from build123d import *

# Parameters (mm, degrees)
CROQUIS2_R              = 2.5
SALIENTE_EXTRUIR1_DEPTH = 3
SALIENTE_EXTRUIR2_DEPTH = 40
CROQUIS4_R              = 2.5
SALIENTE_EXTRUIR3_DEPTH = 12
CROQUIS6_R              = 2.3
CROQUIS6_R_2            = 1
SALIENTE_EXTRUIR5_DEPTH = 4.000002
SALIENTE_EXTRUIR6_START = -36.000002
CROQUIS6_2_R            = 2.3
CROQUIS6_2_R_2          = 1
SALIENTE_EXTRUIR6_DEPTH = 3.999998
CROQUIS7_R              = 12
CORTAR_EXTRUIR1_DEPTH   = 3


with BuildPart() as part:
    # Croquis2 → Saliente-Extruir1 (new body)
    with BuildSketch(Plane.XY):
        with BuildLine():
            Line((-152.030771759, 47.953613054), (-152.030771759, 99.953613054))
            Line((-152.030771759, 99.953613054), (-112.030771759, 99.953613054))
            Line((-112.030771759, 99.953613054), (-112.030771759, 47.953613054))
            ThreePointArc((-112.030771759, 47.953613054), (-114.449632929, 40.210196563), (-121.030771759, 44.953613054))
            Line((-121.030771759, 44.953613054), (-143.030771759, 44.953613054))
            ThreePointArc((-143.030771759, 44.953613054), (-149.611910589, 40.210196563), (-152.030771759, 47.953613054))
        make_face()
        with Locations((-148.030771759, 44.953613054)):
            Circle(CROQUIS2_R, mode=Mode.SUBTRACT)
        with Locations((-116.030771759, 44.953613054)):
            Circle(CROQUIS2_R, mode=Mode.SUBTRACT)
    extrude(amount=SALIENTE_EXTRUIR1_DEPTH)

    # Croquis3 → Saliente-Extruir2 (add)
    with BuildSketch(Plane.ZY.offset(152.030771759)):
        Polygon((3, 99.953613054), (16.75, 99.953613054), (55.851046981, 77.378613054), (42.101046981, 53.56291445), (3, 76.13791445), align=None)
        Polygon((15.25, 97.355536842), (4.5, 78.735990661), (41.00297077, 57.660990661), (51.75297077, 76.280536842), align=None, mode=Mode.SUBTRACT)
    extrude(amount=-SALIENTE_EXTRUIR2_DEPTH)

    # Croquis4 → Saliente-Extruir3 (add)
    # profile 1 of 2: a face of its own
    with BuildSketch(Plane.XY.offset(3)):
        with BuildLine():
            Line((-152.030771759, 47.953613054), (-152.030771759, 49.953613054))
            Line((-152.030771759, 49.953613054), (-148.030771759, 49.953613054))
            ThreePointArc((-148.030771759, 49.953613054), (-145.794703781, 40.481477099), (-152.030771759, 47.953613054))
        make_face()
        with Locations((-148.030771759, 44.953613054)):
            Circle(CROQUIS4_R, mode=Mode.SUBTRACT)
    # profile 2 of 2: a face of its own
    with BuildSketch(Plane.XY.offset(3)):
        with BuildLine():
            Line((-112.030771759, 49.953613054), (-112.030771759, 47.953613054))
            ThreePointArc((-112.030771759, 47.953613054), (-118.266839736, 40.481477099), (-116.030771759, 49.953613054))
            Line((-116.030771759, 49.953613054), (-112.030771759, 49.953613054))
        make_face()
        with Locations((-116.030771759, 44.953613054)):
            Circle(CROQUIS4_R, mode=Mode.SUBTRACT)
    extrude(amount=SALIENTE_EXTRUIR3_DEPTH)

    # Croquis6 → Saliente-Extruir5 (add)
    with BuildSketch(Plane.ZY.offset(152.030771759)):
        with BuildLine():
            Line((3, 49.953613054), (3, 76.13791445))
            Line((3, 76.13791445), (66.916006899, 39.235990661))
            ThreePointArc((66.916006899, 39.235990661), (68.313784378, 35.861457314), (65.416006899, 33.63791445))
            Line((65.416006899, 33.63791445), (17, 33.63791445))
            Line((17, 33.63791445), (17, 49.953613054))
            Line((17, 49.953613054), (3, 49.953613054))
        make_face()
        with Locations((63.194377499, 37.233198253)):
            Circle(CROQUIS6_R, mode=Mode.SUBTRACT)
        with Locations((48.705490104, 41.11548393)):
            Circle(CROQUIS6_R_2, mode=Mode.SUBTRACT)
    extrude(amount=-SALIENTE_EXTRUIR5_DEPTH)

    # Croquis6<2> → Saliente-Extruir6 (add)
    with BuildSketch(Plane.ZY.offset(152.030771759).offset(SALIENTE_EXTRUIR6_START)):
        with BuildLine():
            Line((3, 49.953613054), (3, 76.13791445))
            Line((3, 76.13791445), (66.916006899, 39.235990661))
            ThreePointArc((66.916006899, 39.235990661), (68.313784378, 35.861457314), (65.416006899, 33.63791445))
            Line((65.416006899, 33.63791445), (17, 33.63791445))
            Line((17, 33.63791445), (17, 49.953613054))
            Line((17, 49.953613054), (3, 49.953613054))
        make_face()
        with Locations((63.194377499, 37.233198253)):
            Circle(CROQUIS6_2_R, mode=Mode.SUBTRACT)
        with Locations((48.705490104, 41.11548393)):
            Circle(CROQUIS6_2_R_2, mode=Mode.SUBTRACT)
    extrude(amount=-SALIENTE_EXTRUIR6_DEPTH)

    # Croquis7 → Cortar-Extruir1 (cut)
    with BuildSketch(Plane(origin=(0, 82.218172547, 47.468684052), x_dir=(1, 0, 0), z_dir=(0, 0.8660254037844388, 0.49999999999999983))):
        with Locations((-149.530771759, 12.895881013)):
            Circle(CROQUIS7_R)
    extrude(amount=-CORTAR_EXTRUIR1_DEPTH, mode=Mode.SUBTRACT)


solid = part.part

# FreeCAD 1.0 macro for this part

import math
import FreeCAD as App
import Part
import Sketcher
from FreeCAD import Vector
Q = App.Units.Quantity

doc = App.newDocument("Part")
body = doc.addObject("PartDesign::Body", "Body")

# Sketch on XY plane
sketch1 = body.newObject("Sketcher::SketchObject", "Sketch")
sketch1.AttachmentSupport = (doc.getObject("XY_Plane"), [""])
sketch1.MapMode = "FlatFace"
sketch1.addGeometry(Part.LineSegment(Vector(-152, 100, 0), Vector(-152, 48, 0)), False)
sketch1.addGeometry(Part.ArcOfCircle(Part.Circle(Vector(-148, 45, 0), Vector(0, 0, 1), 5), math.radians(143), math.radians(360)), False)
sketch1.addGeometry(Part.LineSegment(Vector(-143, 45, 0), Vector(-121, 45, 0)), False)
sketch1.addGeometry(Part.ArcOfCircle(Part.Circle(Vector(-116, 45, 0), Vector(0, 0, 1), 5), math.radians(180), math.radians(397)), False)
sketch1.addGeometry(Part.LineSegment(Vector(-112, 48, 0), Vector(-112, 100, 0)), False)
sketch1.addGeometry(Part.LineSegment(Vector(-112, 100, 0), Vector(-152, 100, 0)), False)
sketch1.addGeometry(Part.Circle(Vector(-116, 45, 0), Vector(0, 0, 1), 2.5), False)
sketch1.addGeometry(Part.Circle(Vector(-148, 45, 0), Vector(0, 0, 1), 2.5), False)
sketch1.addConstraint(Sketcher.Constraint("Coincident", 0, 2, 1, 1))
sketch1.addConstraint(Sketcher.Constraint("Coincident", 1, 2, 2, 1))
sketch1.addConstraint(Sketcher.Constraint("Coincident", 2, 2, 3, 1))
sketch1.addConstraint(Sketcher.Constraint("Coincident", 3, 2, 4, 1))
sketch1.addConstraint(Sketcher.Constraint("Coincident", 4, 2, 5, 1))
sketch1.addConstraint(Sketcher.Constraint("Coincident", 5, 2, 0, 1))
sketch1.addConstraint(Sketcher.Constraint("Vertical", 0))
sketch1.addConstraint(Sketcher.Constraint("Horizontal", 2))
sketch1.addConstraint(Sketcher.Constraint("Vertical", 4))
sketch1.addConstraint(Sketcher.Constraint("Horizontal", 5))
sketch1.addConstraint(Sketcher.Constraint("Coincident", 6, 3, 3, 3))
sketch1.addConstraint(Sketcher.Constraint("Coincident", 7, 3, 1, 3))
sketch1.addConstraint(Sketcher.Constraint("Equal", 1, 3))
sketch1.addConstraint(Sketcher.Constraint("Equal", 6, 7))
sketch1.addConstraint(Sketcher.Constraint("Horizontal", 1, 3, 3, 3))
sketch1.addConstraint(Sketcher.Constraint("Horizontal", 7, 3, 1, 2))
sketch1.addConstraint(Sketcher.Constraint("Horizontal", 0, 2, 3, 2))
sketch1.addConstraint(Sketcher.Constraint("Diameter", 6, Q("5 mm")))
sketch1.addConstraint(Sketcher.Constraint("Radius", 1, Q("5 mm")))
sketch1.addConstraint(Sketcher.Constraint("DistanceX", 2, 1, 2, 2, Q("22 mm")))
sketch1.addConstraint(Sketcher.Constraint("DistanceX", 5, 2, 5, 1, Q("40 mm")))
sketch1.addConstraint(Sketcher.Constraint("DistanceY", 0, 2, 0, 1, Q("52 mm")))
sketch1.addConstraint(Sketcher.Constraint("DistanceX", 1, 3, -1, 1, Q("148.030772 mm")))
sketch1.addConstraint(Sketcher.Constraint("DistanceY", -1, 1, 1, 3, Q("44.953613 mm")))
pad1 = body.newObject("PartDesign::Pad", "Pad")
pad1.Profile = sketch1
pad1.Length = 3

# Sketch on YZ plane
sketch2 = body.newObject("Sketcher::SketchObject", "Sketch001")
sketch2.AttachmentSupport = (doc.getObject("YZ_Plane"), [""])
sketch2.MapMode = "FlatFace"
sketch2.AttachmentOffset = App.Placement(Vector(0, 0, -152.030772), App.Rotation())
sketch2.addGeometry(Part.LineSegment(Vector(100, 17, 0), Vector(100, 3, 0)), False)
sketch2.addGeometry(Part.LineSegment(Vector(100, 3, 0), Vector(76, 3, 0)), False)
sketch2.addGeometry(Part.LineSegment(Vector(76, 3, 0), Vector(54, 42, 0)), False)
sketch2.addGeometry(Part.LineSegment(Vector(54, 42, 0), Vector(77, 56, 0)), False)
sketch2.addGeometry(Part.LineSegment(Vector(77, 56, 0), Vector(100, 17, 0)), False)
sketch2.addGeometry(Part.LineSegment(Vector(97, 15, 0), Vector(76, 52, 0)), False)
sketch2.addGeometry(Part.LineSegment(Vector(76, 52, 0), Vector(58, 41, 0)), False)
sketch2.addGeometry(Part.LineSegment(Vector(58, 41, 0), Vector(79, 4, 0)), False)
sketch2.addGeometry(Part.LineSegment(Vector(79, 4, 0), Vector(97, 15, 0)), False)
sketch2.addConstraint(Sketcher.Constraint("Coincident", 0, 2, 1, 1))
sketch2.addConstraint(Sketcher.Constraint("Coincident", 1, 2, 2, 1))
sketch2.addConstraint(Sketcher.Constraint("Coincident", 2, 2, 3, 1))
sketch2.addConstraint(Sketcher.Constraint("Coincident", 3, 2, 4, 1))
sketch2.addConstraint(Sketcher.Constraint("Coincident", 4, 2, 0, 1))
sketch2.addConstraint(Sketcher.Constraint("Coincident", 5, 2, 6, 1))
sketch2.addConstraint(Sketcher.Constraint("Coincident", 6, 2, 7, 1))
sketch2.addConstraint(Sketcher.Constraint("Coincident", 7, 2, 8, 1))
sketch2.addConstraint(Sketcher.Constraint("Coincident", 8, 2, 5, 1))
sketch2.addConstraint(Sketcher.Constraint("Vertical", 0))
sketch2.addConstraint(Sketcher.Constraint("Horizontal", 1))
sketch2.addConstraint(Sketcher.Constraint("Perpendicular", 2, 3))
sketch2.addConstraint(Sketcher.Constraint("Perpendicular", 3, 4))
sketch2.addConstraint(Sketcher.Constraint("Parallel", 4, 5))
sketch2.addConstraint(Sketcher.Constraint("Perpendicular", 5, 6))
sketch2.addConstraint(Sketcher.Constraint("Perpendicular", 6, 7))
sketch2.addConstraint(Sketcher.Constraint("Perpendicular", 7, 8))
sketch2.addConstraint(Sketcher.Constraint("Equal", 2, 4))
sketch2.addConstraint(Sketcher.Constraint("Angle", 2, Q("120 deg")))
sketch2.addConstraint(Sketcher.Constraint("DistanceY", -1, 1, 0, 2, Q("3 mm")))
sketch2.addConstraint(Sketcher.Constraint("Distance", 3, Q("27.5 mm")))
sketch2.addConstraint(Sketcher.Constraint("Distance", 6, Q("21.5 mm")))
sketch2.addConstraint(Sketcher.Constraint("DistanceY", -1, 1, 7, 2, Q("4.5 mm")))
sketch2.addConstraint(Sketcher.Constraint("Distance", 2, Q("45.15 mm")))
sketch2.addConstraint(Sketcher.Constraint("Distance", 5, Q("42.15 mm")))
sketch2.addConstraint(Sketcher.Constraint("DistanceX", -1, 1, 6, 2, Q("57.660991 mm")))
sketch2.addConstraint(Sketcher.Constraint("DistanceX", -1, 1, 0, 2, Q("99.953613 mm")))
pad2 = body.newObject("PartDesign::Pad", "Pad001")
pad2.Profile = sketch2
pad2.Length = 40

# Sketch on XY plane
sketch3 = body.newObject("Sketcher::SketchObject", "Sketch002")
sketch3.AttachmentSupport = (doc.getObject("XY_Plane"), [""])
sketch3.MapMode = "FlatFace"
sketch3.AttachmentOffset = App.Placement(Vector(0, 0, 3), App.Rotation())
sketch3.addGeometry(Part.LineSegment(Vector(-152, 50, 0), Vector(-152, 48, 0)), False)
sketch3.addGeometry(Part.ArcOfCircle(Part.Circle(Vector(-148, 45, 0), Vector(0, 0, 1), 5), math.radians(143), math.radians(450)), False)
sketch3.addGeometry(Part.LineSegment(Vector(-148, 50, 0), Vector(-152, 50, 0)), False)
sketch3.addGeometry(Part.Circle(Vector(-148, 45, 0), Vector(0, 0, 1), 2.5), False)
sketch3.addGeometry(Part.LineSegment(Vector(-112, 48, 0), Vector(-112, 50, 0)), False)
sketch3.addGeometry(Part.LineSegment(Vector(-112, 50, 0), Vector(-116, 50, 0)), False)
sketch3.addGeometry(Part.ArcOfCircle(Part.Circle(Vector(-116, 45, 0), Vector(0, 0, 1), 5), math.radians(90), math.radians(397)), False)
sketch3.addGeometry(Part.Circle(Vector(-116, 45, 0), Vector(0, 0, 1), 2.5), False)
sketch3.addConstraint(Sketcher.Constraint("Coincident", 0, 2, 1, 1))
sketch3.addConstraint(Sketcher.Constraint("Tangent", 1, 2, 2, 1))
sketch3.addConstraint(Sketcher.Constraint("Coincident", 2, 2, 0, 1))
sketch3.addConstraint(Sketcher.Constraint("Coincident", 4, 2, 5, 1))
sketch3.addConstraint(Sketcher.Constraint("Tangent", 5, 2, 6, 1))
sketch3.addConstraint(Sketcher.Constraint("Coincident", 6, 2, 4, 1))
sketch3.addConstraint(Sketcher.Constraint("Vertical", 0))
sketch3.addConstraint(Sketcher.Constraint("Horizontal", 2))
sketch3.addConstraint(Sketcher.Constraint("Vertical", 4))
sketch3.addConstraint(Sketcher.Constraint("Horizontal", 5))
sketch3.addConstraint(Sketcher.Constraint("Coincident", 3, 3, 1, 3))
sketch3.addConstraint(Sketcher.Constraint("Coincident", 7, 3, 6, 3))
sketch3.addConstraint(Sketcher.Constraint("Equal", 1, 6))
sketch3.addConstraint(Sketcher.Constraint("Equal", 3, 7))
sketch3.addConstraint(Sketcher.Constraint("Horizontal", 3, 3, 6, 3))
sketch3.addConstraint(Sketcher.Constraint("Horizontal", 0, 2, 6, 2))
sketch3.addConstraint(Sketcher.Constraint("Diameter", 3, Q("5 mm")))
sketch3.addConstraint(Sketcher.Constraint("Radius", 1, Q("5 mm")))
sketch3.addConstraint(Sketcher.Constraint("DistanceX", 2, 2, 2, 1, Q("4 mm")))
sketch3.addConstraint(Sketcher.Constraint("DistanceX", 1, 3, 6, 3, Q("32 mm")))
sketch3.addConstraint(Sketcher.Constraint("DistanceX", 1, 3, -1, 1, Q("148.030772 mm")))
sketch3.addConstraint(Sketcher.Constraint("DistanceY", -1, 1, 1, 3, Q("44.953613 mm")))
pad3 = body.newObject("PartDesign::Pad", "Pad002")
pad3.Profile = sketch3
pad3.Length = 12

# Sketch on YZ plane
sketch4 = body.newObject("Sketcher::SketchObject", "Sketch003")
sketch4.AttachmentSupport = (doc.getObject("YZ_Plane"), [""])
sketch4.MapMode = "FlatFace"
sketch4.AttachmentOffset = App.Placement(Vector(0, 0, -152.030772), App.Rotation())
sketch4.addGeometry(Part.LineSegment(Vector(76.1, 3, 0), Vector(50, 3, 0)), False)
sketch4.addGeometry(Part.LineSegment(Vector(50, 3, 0), Vector(50, 17, 0)), False)
sketch4.addGeometry(Part.LineSegment(Vector(50, 17, 0), Vector(33.6, 17, 0)), False)
sketch4.addGeometry(Part.LineSegment(Vector(33.6, 17, 0), Vector(33.6, 65.4, 0)), False)
sketch4.addGeometry(Part.ArcOfCircle(Part.Circle(Vector(36.6, 65.4, 0), Vector(0, 0, 1), 3), math.radians(30), math.radians(180)), False)
sketch4.addGeometry(Part.LineSegment(Vector(39.2, 66.9, 0), Vector(76.1, 3, 0)), False)
sketch4.addGeometry(Part.Circle(Vector(37.2, 63.2, 0), Vector(0, 0, 1), 2.3), False)
sketch4.addGeometry(Part.Circle(Vector(41.1, 48.7, 0), Vector(0, 0, 1), 1), False)
sketch4.addConstraint(Sketcher.Constraint("Coincident", 0, 2, 1, 1))
sketch4.addConstraint(Sketcher.Constraint("Coincident", 1, 2, 2, 1))
sketch4.addConstraint(Sketcher.Constraint("Coincident", 2, 2, 3, 1))
sketch4.addConstraint(Sketcher.Constraint("Tangent", 3, 2, 4, 2))
sketch4.addConstraint(Sketcher.Constraint("Tangent", 4, 1, 5, 1))
sketch4.addConstraint(Sketcher.Constraint("Coincident", 5, 2, 0, 1))
sketch4.addConstraint(Sketcher.Constraint("Horizontal", 0))
sketch4.addConstraint(Sketcher.Constraint("Vertical", 1))
sketch4.addConstraint(Sketcher.Constraint("Horizontal", 2))
sketch4.addConstraint(Sketcher.Constraint("Vertical", 3))
sketch4.addConstraint(Sketcher.Constraint("Diameter", 7, Q("2 mm")))
sketch4.addConstraint(Sketcher.Constraint("Radius", 4, Q("3 mm")))
sketch4.addConstraint(Sketcher.Constraint("Diameter", 6, Q("4.6 mm")))
sketch4.addConstraint(Sketcher.Constraint("DistanceY", 1, 1, 1, 2, Q("14 mm")))
sketch4.addConstraint(Sketcher.Constraint("Angle", 5, Q("-60 deg")))
sketch4.addConstraint(Sketcher.Constraint("DistanceY", -1, 1, 0, 2, Q("3 mm")))
sketch4.addConstraint(Sketcher.Constraint("DistanceX", 2, 2, 5, 2, Q("42.5 mm")))
sketch4.addConstraint(Sketcher.Constraint("DistanceX", 0, 2, 0, 1, Q("26.184301 mm")))
sketch4.addConstraint(Sketcher.Constraint("DistanceX", -1, 1, 6, 3, Q("37.233198 mm")))
sketch4.addConstraint(Sketcher.Constraint("DistanceY", -1, 1, 7, 3, Q("48.70549 mm")))
sketch4.addConstraint(Sketcher.Constraint("DistanceX", -1, 1, 4, 1, Q("39.235991 mm")))
sketch4.addConstraint(Sketcher.Constraint("DistanceY", 6, 3, 4, 3, Q("2.221629 mm")))
sketch4.addConstraint(Sketcher.Constraint("DistanceX", 4, 3, 7, 3, Q("4.477569 mm")))
pad4 = body.newObject("PartDesign::Pad", "Pad003")
pad4.Profile = sketch4
pad4.Length = 4.000002

# Sketch on YZ plane
sketch5 = body.newObject("Sketcher::SketchObject", "Sketch004")
sketch5.AttachmentSupport = (doc.getObject("YZ_Plane"), [""])
sketch5.MapMode = "FlatFace"
sketch5.AttachmentOffset = App.Placement(Vector(0, 0, -116.03077), App.Rotation())
sketch5.addGeometry(Part.LineSegment(Vector(76.1, 3, 0), Vector(50, 3, 0)), False)
sketch5.addGeometry(Part.LineSegment(Vector(50, 3, 0), Vector(50, 17, 0)), False)
sketch5.addGeometry(Part.LineSegment(Vector(50, 17, 0), Vector(33.6, 17, 0)), False)
sketch5.addGeometry(Part.LineSegment(Vector(33.6, 17, 0), Vector(33.6, 65.4, 0)), False)
sketch5.addGeometry(Part.ArcOfCircle(Part.Circle(Vector(36.6, 65.4, 0), Vector(0, 0, 1), 3), math.radians(30), math.radians(180)), False)
sketch5.addGeometry(Part.LineSegment(Vector(39.2, 66.9, 0), Vector(76.1, 3, 0)), False)
sketch5.addGeometry(Part.Circle(Vector(37.2, 63.2, 0), Vector(0, 0, 1), 2.3), False)
sketch5.addGeometry(Part.Circle(Vector(41.1, 48.7, 0), Vector(0, 0, 1), 1), False)
sketch5.addConstraint(Sketcher.Constraint("Coincident", 0, 2, 1, 1))
sketch5.addConstraint(Sketcher.Constraint("Coincident", 1, 2, 2, 1))
sketch5.addConstraint(Sketcher.Constraint("Coincident", 2, 2, 3, 1))
sketch5.addConstraint(Sketcher.Constraint("Tangent", 3, 2, 4, 2))
sketch5.addConstraint(Sketcher.Constraint("Tangent", 4, 1, 5, 1))
sketch5.addConstraint(Sketcher.Constraint("Coincident", 5, 2, 0, 1))
sketch5.addConstraint(Sketcher.Constraint("Horizontal", 0))
sketch5.addConstraint(Sketcher.Constraint("Vertical", 1))
sketch5.addConstraint(Sketcher.Constraint("Horizontal", 2))
sketch5.addConstraint(Sketcher.Constraint("Vertical", 3))
sketch5.addConstraint(Sketcher.Constraint("Diameter", 7, Q("2 mm")))
sketch5.addConstraint(Sketcher.Constraint("Radius", 4, Q("3 mm")))
sketch5.addConstraint(Sketcher.Constraint("Diameter", 6, Q("4.6 mm")))
sketch5.addConstraint(Sketcher.Constraint("DistanceY", 1, 1, 1, 2, Q("14 mm")))
sketch5.addConstraint(Sketcher.Constraint("Angle", 5, Q("-60 deg")))
sketch5.addConstraint(Sketcher.Constraint("DistanceY", -1, 1, 0, 2, Q("3 mm")))
sketch5.addConstraint(Sketcher.Constraint("DistanceX", 2, 2, 5, 2, Q("42.5 mm")))
sketch5.addConstraint(Sketcher.Constraint("DistanceX", 0, 2, 0, 1, Q("26.184301 mm")))
sketch5.addConstraint(Sketcher.Constraint("DistanceX", -1, 1, 6, 3, Q("37.233198 mm")))
sketch5.addConstraint(Sketcher.Constraint("DistanceY", -1, 1, 7, 3, Q("48.70549 mm")))
sketch5.addConstraint(Sketcher.Constraint("DistanceX", -1, 1, 4, 1, Q("39.235991 mm")))
sketch5.addConstraint(Sketcher.Constraint("DistanceY", 6, 3, 4, 3, Q("2.221629 mm")))
sketch5.addConstraint(Sketcher.Constraint("DistanceX", 4, 3, 7, 3, Q("4.477569 mm")))
pad5 = body.newObject("PartDesign::Pad", "Pad004")
pad5.Profile = sketch5
pad5.Length = 3.999998

# Sketch on an angled plane
sketch6 = body.newObject("Sketcher::SketchObject", "Sketch005")
sketch6.Placement = App.Placement(Vector(0, 82.218173, 47.468684), App.Rotation(Vector(1, 0, 0), Vector(0, 0.5, -0.866025404), Vector(0, 0.866025404, 0.5), "ZXY"))
sketch6.addGeometry(Part.Circle(Vector(-150, 13, 0), Vector(0, 0, 1), 12), False)
sketch6.addConstraint(Sketcher.Constraint("Diameter", 0, Q("24 mm")))
sketch6.addConstraint(Sketcher.Constraint("DistanceX", 0, 3, -1, 1, Q("149.530772 mm")))
sketch6.addConstraint(Sketcher.Constraint("DistanceY", -1, 1, 0, 3, Q("12.895881 mm")))
pocket1 = body.newObject("PartDesign::Pocket", "Pocket")
pocket1.Profile = sketch6
pocket1.Length = 3

doc.recompute()
